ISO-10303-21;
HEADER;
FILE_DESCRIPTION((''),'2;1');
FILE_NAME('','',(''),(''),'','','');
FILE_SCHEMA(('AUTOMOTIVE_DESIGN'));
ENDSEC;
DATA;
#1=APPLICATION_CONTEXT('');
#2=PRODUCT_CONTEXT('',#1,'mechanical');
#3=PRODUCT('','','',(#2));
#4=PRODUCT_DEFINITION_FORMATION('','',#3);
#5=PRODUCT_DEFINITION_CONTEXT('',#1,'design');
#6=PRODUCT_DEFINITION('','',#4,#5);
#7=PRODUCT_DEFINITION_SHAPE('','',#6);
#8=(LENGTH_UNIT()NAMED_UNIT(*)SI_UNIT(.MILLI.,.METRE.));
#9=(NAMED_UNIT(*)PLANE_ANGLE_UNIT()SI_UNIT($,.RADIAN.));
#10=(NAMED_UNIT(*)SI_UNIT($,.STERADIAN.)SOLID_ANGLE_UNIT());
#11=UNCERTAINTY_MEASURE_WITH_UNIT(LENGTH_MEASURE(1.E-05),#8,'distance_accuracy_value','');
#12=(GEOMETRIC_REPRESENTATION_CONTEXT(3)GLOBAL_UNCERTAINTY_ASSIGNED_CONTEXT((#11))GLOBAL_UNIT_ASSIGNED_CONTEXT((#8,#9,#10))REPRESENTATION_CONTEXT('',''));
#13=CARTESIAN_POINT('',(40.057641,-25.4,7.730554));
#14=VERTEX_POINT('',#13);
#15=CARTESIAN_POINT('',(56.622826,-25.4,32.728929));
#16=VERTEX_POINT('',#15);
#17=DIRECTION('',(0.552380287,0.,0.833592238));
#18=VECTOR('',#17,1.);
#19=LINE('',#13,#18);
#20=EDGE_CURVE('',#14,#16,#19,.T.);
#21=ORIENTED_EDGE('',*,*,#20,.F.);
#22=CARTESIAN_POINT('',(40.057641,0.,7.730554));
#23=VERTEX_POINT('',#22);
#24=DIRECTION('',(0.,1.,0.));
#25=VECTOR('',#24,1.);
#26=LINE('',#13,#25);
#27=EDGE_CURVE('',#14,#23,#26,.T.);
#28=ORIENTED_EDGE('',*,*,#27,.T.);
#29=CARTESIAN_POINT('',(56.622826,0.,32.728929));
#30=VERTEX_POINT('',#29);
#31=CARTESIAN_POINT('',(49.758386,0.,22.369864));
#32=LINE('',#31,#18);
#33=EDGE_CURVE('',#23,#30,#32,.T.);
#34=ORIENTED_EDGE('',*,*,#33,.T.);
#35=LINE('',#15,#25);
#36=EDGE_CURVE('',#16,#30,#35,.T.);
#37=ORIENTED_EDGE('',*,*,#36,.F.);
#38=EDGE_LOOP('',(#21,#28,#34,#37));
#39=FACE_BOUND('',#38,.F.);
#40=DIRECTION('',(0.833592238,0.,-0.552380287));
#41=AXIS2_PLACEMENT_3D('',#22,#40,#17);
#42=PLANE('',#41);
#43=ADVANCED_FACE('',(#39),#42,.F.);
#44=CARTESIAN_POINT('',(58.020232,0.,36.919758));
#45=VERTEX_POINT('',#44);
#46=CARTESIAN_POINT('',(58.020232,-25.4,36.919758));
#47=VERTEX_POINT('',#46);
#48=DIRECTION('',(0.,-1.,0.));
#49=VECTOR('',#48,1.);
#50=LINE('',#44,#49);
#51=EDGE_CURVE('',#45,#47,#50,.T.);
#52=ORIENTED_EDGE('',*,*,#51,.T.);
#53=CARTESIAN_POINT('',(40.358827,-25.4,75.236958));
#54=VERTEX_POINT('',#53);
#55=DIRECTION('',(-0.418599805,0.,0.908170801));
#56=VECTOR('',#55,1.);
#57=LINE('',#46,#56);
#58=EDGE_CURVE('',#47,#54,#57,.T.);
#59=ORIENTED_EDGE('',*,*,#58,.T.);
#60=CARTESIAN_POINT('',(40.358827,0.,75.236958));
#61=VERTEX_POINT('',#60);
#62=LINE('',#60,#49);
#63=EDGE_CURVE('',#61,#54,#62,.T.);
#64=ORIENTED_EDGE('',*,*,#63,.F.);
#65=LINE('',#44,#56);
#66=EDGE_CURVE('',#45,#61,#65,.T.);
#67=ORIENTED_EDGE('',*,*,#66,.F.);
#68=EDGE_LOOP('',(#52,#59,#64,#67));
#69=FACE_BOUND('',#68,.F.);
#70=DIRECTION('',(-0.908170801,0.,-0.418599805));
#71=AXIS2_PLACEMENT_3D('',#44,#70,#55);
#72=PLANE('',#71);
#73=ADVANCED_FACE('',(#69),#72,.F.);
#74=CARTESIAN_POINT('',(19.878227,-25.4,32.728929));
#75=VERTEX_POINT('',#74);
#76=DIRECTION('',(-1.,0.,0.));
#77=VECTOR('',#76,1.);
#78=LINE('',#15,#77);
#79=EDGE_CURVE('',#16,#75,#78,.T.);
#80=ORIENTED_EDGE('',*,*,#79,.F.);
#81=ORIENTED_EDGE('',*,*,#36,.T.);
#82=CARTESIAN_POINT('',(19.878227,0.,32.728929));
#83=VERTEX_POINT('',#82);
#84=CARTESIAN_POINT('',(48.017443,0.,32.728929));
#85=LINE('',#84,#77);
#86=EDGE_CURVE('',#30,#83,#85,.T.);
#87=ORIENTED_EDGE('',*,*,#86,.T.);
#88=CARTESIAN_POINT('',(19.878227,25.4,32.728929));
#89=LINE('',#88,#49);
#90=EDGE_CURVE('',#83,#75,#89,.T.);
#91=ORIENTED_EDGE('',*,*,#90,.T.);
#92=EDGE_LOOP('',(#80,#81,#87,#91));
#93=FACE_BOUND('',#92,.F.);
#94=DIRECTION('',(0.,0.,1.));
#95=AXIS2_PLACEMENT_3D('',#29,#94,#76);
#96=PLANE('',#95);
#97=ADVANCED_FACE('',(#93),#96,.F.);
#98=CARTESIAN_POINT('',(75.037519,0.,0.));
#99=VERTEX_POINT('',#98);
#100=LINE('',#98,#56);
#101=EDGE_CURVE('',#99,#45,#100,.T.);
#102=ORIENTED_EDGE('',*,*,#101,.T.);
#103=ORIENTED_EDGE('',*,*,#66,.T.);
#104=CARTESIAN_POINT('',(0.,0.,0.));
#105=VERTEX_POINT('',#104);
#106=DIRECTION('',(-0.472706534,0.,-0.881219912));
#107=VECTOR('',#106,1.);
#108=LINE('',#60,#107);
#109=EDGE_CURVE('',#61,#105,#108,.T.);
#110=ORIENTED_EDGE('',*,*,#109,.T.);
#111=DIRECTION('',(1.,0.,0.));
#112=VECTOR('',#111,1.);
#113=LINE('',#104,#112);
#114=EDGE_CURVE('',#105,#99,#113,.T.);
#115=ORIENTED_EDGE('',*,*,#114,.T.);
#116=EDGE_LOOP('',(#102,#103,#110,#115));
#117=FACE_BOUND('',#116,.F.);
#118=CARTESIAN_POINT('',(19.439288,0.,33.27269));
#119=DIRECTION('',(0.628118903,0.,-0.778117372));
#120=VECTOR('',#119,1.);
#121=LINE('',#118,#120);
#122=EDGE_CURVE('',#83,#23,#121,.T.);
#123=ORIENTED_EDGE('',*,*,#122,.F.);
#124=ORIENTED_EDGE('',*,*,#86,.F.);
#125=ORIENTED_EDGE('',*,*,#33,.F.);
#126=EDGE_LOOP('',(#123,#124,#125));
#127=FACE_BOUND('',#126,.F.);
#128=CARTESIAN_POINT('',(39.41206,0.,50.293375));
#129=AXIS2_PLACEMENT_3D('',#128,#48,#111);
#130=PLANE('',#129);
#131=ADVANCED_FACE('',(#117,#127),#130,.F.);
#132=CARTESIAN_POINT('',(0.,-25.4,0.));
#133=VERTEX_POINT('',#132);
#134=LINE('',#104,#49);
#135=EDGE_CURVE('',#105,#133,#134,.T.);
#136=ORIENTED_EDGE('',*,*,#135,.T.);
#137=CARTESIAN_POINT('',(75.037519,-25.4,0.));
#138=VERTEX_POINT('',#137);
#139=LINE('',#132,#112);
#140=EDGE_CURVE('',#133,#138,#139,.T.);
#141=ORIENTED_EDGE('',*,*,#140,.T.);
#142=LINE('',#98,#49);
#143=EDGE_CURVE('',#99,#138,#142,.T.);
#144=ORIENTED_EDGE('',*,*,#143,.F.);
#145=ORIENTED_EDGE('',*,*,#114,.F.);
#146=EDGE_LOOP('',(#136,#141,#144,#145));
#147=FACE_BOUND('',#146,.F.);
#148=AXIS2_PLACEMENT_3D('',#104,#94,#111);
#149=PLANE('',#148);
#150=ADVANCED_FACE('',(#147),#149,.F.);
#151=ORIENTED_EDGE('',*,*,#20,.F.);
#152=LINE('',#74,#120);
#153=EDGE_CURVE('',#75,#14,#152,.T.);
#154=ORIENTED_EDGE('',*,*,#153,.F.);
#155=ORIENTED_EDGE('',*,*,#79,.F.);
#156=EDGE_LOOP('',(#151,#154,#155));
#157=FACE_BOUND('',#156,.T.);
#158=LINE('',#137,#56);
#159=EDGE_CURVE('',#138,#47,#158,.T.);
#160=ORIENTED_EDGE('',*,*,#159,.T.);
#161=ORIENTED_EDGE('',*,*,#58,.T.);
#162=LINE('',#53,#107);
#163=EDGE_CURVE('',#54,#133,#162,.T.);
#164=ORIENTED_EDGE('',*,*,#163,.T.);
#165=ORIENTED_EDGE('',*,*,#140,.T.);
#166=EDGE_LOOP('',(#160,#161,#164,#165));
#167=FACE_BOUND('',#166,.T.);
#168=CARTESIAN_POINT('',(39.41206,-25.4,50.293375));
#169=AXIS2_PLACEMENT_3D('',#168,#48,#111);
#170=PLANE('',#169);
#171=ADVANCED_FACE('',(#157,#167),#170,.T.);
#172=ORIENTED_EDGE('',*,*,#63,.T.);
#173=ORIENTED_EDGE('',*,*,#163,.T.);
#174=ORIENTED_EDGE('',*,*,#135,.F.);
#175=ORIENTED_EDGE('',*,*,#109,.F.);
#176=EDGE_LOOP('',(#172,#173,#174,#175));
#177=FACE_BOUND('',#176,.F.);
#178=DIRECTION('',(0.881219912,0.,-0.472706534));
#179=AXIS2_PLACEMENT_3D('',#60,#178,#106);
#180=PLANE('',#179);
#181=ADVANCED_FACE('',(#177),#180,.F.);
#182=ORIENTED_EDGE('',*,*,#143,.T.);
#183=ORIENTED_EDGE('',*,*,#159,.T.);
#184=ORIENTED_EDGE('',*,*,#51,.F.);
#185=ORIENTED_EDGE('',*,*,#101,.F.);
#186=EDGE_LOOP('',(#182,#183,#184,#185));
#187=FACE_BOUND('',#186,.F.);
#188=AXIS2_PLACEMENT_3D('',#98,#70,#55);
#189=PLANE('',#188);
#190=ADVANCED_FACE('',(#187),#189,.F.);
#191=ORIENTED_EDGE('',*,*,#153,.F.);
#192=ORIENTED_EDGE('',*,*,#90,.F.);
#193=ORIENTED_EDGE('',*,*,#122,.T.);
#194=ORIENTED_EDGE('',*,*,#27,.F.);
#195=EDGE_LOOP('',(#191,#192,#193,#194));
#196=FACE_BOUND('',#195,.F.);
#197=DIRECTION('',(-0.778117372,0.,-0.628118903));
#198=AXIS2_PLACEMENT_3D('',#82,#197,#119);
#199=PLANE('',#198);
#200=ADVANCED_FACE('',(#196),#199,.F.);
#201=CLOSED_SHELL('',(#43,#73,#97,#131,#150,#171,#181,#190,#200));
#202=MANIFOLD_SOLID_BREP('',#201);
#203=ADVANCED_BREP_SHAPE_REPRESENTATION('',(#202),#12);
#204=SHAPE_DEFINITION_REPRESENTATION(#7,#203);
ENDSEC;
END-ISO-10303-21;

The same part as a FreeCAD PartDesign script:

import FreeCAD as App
import Part
import Sketcher
from FreeCAD import Vector
Q = App.Units.Quantity


def add_polygon(sketch, points):
    """Adds a closed chain of lines whose ends are joined by coincident constraints."""
    first, n = sketch.GeometryCount, len(points)
    for a, b in zip(points, points[1:] + points[:1]):
        sketch.addGeometry(Part.LineSegment(App.Vector(*a, 0), App.Vector(*b, 0)), False)
    for i in range(n):
        sketch.addConstraint(Sketcher.Constraint("Coincident", first + i, 2, first + (i + 1) % n, 1))

doc = App.newDocument("Part")
body = doc.addObject("PartDesign::Body", "Body")

# Sketch on XZ plane
sketch1 = body.newObject("Sketcher::SketchObject", "Sketch")
sketch1.AttachmentSupport = (doc.getObject("XZ_Plane"), [""])
sketch1.MapMode = "FlatFace"
add_polygon(sketch1, [(58, 37), (40, 75), (0, 0), (75, 0)])  # lines 0-3
sketch1.addConstraint([
    Sketcher.Constraint("Horizontal", 2),
    Sketcher.Constraint("Coincident", 1, 2, -1, 1),
    Sketcher.Constraint("Parallel", 0, 3),
    Sketcher.Constraint("DistanceX", 2, 1, 2, 2, Q("75.037519 mm")),
    Sketcher.Constraint("DistanceY", 3, 2, 0, 2, Q("38.3172 mm")),
    Sketcher.Constraint("Distance", 3, Q("40.652879 mm")),
    Sketcher.Constraint("DistanceX", -1, 1, 3, 2, Q("58.020232 mm")),
])
pad1 = body.newObject("PartDesign::Pad", "Pad")
pad1.Profile = sketch1
pad1.Length = Q("1 in")

# Sketch on XZ plane
sketch2 = body.newObject("Sketcher::SketchObject", "Sketch001")
sketch2.AttachmentSupport = (doc.getObject("XZ_Plane"), [""])
sketch2.MapMode = "FlatFace"
add_polygon(sketch2, [(57, 33), (20, 33), (40, 8)])  # lines 0-2
sketch2.addConstraint([
    Sketcher.Constraint("Horizontal", 0),
    Sketcher.Constraint("DistanceX", 0, 2, 0, 1, Q("36.744598 mm")),
    Sketcher.Constraint("Distance", 1, Q("32.126741 mm")),
    Sketcher.Constraint("DistanceY", -1, 1, 0, 2, Q("32.728929 mm")),
    Sketcher.Constraint("DistanceX", -1, 1, 1, 2, Q("40.057641 mm")),
    Sketcher.Constraint("Distance", 2, Q("29.988733 mm")),
])
pocket1 = body.newObject("PartDesign::Pocket", "Pocket")
pocket1.Profile = sketch2
pocket1.Length = Q("2 in")
pocket1.Midplane = True

doc.recompute()
